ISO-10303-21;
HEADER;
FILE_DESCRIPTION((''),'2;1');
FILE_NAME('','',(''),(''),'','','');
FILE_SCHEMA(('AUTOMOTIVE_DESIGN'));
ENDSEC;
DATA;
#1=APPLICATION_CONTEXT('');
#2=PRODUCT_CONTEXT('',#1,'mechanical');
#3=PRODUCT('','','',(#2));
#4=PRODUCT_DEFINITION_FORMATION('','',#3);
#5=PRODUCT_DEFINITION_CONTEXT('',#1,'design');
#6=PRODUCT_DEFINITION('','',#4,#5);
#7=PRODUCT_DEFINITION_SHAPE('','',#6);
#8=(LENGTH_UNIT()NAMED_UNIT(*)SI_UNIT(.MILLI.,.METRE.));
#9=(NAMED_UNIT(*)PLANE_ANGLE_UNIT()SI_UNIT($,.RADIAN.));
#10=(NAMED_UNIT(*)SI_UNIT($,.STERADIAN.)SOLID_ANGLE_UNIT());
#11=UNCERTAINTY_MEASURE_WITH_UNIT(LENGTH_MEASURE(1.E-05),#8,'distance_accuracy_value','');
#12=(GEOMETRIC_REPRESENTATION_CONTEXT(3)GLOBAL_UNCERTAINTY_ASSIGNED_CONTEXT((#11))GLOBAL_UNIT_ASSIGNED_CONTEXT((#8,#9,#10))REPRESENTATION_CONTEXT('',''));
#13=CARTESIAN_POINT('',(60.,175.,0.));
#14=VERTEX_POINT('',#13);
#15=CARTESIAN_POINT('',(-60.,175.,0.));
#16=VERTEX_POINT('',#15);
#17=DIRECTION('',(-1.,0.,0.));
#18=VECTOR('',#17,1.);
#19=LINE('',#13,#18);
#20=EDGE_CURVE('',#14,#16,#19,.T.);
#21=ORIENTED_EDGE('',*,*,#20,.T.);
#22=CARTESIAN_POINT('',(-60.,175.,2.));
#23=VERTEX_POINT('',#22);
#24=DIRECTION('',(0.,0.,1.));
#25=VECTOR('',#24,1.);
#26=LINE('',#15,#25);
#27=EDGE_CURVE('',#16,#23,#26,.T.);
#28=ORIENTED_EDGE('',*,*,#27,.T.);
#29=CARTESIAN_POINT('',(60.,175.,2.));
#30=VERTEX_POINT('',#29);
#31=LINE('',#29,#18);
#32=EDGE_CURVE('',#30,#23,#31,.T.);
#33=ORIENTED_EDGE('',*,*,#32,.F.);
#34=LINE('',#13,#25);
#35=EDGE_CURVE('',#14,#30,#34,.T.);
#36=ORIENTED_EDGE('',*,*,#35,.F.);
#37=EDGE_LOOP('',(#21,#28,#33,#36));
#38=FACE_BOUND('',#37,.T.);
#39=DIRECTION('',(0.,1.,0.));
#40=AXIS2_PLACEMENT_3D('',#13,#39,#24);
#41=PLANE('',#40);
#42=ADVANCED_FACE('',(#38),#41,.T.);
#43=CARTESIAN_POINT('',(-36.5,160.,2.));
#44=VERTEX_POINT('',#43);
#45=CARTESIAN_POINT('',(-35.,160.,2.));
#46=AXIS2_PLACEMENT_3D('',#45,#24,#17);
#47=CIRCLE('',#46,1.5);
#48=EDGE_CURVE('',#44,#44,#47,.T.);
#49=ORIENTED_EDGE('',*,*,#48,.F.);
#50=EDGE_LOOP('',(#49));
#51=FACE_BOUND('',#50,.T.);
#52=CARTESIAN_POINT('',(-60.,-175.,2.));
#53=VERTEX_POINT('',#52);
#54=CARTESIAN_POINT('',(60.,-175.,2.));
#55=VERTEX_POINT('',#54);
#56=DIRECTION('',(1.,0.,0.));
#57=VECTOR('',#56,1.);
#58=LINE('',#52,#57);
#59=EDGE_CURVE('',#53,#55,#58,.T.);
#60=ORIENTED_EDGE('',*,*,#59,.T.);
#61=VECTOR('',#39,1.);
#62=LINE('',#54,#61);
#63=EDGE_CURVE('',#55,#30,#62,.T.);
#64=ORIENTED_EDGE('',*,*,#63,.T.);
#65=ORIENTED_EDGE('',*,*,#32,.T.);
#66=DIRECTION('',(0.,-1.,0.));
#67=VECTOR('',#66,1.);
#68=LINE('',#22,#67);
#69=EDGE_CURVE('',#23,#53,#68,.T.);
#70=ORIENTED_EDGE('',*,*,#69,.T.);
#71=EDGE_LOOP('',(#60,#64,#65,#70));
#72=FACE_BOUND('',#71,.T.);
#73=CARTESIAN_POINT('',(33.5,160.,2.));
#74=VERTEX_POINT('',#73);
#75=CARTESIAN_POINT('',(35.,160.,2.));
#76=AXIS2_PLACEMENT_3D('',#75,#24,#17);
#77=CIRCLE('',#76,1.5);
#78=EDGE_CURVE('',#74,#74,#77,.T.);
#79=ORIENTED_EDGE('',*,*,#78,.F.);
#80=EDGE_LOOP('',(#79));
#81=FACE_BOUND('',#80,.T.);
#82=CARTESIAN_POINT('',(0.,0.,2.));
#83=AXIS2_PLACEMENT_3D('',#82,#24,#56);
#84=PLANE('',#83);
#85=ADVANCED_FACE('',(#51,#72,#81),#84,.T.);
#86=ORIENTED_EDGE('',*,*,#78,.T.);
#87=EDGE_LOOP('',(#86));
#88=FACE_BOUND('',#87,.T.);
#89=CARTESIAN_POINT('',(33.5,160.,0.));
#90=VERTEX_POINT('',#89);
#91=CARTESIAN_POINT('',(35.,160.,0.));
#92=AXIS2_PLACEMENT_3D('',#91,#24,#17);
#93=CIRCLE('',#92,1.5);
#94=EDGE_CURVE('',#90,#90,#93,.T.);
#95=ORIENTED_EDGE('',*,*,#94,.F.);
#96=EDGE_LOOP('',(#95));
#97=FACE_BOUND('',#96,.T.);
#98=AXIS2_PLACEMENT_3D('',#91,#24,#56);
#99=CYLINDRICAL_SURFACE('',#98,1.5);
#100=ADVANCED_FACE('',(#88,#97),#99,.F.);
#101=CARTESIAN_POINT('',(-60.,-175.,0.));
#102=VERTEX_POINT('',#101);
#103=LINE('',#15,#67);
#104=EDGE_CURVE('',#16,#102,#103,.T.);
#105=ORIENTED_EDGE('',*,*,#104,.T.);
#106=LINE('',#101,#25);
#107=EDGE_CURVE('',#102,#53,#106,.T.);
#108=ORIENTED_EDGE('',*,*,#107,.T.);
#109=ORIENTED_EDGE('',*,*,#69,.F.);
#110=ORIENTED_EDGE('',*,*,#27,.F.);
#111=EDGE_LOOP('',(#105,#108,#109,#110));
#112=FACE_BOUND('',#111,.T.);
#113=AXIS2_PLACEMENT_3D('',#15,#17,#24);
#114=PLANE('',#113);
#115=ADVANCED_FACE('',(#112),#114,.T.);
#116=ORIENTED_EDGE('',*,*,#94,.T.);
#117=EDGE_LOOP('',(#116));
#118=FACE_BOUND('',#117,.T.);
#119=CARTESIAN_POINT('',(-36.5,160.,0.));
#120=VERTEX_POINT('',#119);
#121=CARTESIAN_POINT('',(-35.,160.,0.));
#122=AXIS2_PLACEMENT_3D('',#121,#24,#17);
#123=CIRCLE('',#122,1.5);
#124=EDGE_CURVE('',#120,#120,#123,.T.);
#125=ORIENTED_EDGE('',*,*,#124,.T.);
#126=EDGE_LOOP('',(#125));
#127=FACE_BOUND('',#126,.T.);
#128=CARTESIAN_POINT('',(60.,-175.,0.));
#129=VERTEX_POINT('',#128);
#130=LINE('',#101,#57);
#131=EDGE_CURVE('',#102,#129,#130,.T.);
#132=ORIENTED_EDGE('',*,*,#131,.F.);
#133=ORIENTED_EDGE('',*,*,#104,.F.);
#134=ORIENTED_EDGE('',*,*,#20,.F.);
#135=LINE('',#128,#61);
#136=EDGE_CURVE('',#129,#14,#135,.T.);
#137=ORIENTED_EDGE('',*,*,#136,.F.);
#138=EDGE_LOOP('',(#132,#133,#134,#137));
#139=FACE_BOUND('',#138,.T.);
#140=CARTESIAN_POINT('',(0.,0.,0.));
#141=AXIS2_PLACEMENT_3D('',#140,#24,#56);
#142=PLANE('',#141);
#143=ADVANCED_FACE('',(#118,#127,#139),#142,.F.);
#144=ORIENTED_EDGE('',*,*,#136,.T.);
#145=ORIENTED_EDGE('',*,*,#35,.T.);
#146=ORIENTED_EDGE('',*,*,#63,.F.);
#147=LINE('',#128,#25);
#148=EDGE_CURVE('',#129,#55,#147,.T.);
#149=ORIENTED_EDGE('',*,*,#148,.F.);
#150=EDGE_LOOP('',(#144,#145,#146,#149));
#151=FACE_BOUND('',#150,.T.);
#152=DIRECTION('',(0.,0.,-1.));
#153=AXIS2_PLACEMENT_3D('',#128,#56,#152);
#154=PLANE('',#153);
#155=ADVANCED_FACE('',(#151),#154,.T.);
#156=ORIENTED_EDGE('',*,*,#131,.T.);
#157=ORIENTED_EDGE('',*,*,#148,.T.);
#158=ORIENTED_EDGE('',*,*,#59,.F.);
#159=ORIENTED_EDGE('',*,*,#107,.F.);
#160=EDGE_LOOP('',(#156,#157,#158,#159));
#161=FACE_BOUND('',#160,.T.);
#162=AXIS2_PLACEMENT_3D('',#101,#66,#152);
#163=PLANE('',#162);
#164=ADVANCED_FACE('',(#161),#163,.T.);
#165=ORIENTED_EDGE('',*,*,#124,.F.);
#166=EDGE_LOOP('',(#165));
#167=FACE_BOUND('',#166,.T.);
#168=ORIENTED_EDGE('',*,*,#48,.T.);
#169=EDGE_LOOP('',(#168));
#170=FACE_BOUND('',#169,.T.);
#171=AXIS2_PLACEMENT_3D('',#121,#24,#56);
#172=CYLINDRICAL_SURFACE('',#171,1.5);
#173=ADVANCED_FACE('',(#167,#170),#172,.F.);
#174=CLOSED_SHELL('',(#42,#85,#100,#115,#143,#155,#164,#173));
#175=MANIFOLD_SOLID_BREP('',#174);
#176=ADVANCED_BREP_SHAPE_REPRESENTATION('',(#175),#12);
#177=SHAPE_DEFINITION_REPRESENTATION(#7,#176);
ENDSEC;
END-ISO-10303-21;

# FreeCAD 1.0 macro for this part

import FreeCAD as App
import Part
import Sketcher

V = App.Vector
Q = App.Units.Quantity

doc = App.newDocument("Part")
body = doc.addObject("PartDesign::Body", "Body")

# Sketch on XY plane
sketch1 = body.newObject("Sketcher::SketchObject", "Sketch")
sketch1.AttachmentSupport = (doc.getObject("XY_Plane"), [""])
sketch1.MapMode = "FlatFace"
sketch1.AttachmentOffset = App.Placement(V(0, 0, 2), App.Rotation())
sketch1.addGeometry([
    Part.LineSegment(V(-60, 175, 0), V(-60, -175, 0)),  # 0
    Part.LineSegment(V(-60, -175, 0), V(60, -175, 0)),  # 1
    Part.LineSegment(V(60, -175, 0), V(60, 175, 0)),  # 2
    Part.LineSegment(V(60, 175, 0), V(-60, 175, 0)),  # 3
    Part.Circle(V(-35, 160, 0), V(0, 0, 1), 1.5),  # 4
    Part.Circle(V(35, 160, 0), V(0, 0, 1), 1.5),  # 5
], False)
sketch1.addConstraint([
    Sketcher.Constraint("Coincident", 0, 2, 1, 1),
    Sketcher.Constraint("Coincident", 1, 2, 2, 1),
    Sketcher.Constraint("Coincident", 2, 2, 3, 1),
    Sketcher.Constraint("Coincident", 3, 2, 0, 1),
    Sketcher.Constraint("Vertical", 0),
    Sketcher.Constraint("Horizontal", 1),
    Sketcher.Constraint("Vertical", 2),
    Sketcher.Constraint("Horizontal", 3),
    Sketcher.Constraint("Equal", 4, 5),
    Sketcher.Constraint("Symmetric", 0, 2, 2, 2, -1, 1),
    Sketcher.Constraint("Symmetric", 4, 3, 5, 3, -2),
    Sketcher.Constraint("Diameter", 4, Q("3 mm")),
    Sketcher.Constraint("DistanceX", 1, 1, 1, 2, Q("120 mm")),
    Sketcher.Constraint("DistanceY", 0, 2, 0, 1, Q("350 mm")),
    Sketcher.Constraint("DistanceX", 4, 3, -1, 1, Q("35 mm")),
    Sketcher.Constraint("DistanceY", -1, 1, 4, 3, Q("160 mm")),
])
pad1 = body.newObject("PartDesign::Pad", "Pad")
pad1.Profile = sketch1
pad1.Length = 2
pad1.Reversed = True

doc.recompute()
